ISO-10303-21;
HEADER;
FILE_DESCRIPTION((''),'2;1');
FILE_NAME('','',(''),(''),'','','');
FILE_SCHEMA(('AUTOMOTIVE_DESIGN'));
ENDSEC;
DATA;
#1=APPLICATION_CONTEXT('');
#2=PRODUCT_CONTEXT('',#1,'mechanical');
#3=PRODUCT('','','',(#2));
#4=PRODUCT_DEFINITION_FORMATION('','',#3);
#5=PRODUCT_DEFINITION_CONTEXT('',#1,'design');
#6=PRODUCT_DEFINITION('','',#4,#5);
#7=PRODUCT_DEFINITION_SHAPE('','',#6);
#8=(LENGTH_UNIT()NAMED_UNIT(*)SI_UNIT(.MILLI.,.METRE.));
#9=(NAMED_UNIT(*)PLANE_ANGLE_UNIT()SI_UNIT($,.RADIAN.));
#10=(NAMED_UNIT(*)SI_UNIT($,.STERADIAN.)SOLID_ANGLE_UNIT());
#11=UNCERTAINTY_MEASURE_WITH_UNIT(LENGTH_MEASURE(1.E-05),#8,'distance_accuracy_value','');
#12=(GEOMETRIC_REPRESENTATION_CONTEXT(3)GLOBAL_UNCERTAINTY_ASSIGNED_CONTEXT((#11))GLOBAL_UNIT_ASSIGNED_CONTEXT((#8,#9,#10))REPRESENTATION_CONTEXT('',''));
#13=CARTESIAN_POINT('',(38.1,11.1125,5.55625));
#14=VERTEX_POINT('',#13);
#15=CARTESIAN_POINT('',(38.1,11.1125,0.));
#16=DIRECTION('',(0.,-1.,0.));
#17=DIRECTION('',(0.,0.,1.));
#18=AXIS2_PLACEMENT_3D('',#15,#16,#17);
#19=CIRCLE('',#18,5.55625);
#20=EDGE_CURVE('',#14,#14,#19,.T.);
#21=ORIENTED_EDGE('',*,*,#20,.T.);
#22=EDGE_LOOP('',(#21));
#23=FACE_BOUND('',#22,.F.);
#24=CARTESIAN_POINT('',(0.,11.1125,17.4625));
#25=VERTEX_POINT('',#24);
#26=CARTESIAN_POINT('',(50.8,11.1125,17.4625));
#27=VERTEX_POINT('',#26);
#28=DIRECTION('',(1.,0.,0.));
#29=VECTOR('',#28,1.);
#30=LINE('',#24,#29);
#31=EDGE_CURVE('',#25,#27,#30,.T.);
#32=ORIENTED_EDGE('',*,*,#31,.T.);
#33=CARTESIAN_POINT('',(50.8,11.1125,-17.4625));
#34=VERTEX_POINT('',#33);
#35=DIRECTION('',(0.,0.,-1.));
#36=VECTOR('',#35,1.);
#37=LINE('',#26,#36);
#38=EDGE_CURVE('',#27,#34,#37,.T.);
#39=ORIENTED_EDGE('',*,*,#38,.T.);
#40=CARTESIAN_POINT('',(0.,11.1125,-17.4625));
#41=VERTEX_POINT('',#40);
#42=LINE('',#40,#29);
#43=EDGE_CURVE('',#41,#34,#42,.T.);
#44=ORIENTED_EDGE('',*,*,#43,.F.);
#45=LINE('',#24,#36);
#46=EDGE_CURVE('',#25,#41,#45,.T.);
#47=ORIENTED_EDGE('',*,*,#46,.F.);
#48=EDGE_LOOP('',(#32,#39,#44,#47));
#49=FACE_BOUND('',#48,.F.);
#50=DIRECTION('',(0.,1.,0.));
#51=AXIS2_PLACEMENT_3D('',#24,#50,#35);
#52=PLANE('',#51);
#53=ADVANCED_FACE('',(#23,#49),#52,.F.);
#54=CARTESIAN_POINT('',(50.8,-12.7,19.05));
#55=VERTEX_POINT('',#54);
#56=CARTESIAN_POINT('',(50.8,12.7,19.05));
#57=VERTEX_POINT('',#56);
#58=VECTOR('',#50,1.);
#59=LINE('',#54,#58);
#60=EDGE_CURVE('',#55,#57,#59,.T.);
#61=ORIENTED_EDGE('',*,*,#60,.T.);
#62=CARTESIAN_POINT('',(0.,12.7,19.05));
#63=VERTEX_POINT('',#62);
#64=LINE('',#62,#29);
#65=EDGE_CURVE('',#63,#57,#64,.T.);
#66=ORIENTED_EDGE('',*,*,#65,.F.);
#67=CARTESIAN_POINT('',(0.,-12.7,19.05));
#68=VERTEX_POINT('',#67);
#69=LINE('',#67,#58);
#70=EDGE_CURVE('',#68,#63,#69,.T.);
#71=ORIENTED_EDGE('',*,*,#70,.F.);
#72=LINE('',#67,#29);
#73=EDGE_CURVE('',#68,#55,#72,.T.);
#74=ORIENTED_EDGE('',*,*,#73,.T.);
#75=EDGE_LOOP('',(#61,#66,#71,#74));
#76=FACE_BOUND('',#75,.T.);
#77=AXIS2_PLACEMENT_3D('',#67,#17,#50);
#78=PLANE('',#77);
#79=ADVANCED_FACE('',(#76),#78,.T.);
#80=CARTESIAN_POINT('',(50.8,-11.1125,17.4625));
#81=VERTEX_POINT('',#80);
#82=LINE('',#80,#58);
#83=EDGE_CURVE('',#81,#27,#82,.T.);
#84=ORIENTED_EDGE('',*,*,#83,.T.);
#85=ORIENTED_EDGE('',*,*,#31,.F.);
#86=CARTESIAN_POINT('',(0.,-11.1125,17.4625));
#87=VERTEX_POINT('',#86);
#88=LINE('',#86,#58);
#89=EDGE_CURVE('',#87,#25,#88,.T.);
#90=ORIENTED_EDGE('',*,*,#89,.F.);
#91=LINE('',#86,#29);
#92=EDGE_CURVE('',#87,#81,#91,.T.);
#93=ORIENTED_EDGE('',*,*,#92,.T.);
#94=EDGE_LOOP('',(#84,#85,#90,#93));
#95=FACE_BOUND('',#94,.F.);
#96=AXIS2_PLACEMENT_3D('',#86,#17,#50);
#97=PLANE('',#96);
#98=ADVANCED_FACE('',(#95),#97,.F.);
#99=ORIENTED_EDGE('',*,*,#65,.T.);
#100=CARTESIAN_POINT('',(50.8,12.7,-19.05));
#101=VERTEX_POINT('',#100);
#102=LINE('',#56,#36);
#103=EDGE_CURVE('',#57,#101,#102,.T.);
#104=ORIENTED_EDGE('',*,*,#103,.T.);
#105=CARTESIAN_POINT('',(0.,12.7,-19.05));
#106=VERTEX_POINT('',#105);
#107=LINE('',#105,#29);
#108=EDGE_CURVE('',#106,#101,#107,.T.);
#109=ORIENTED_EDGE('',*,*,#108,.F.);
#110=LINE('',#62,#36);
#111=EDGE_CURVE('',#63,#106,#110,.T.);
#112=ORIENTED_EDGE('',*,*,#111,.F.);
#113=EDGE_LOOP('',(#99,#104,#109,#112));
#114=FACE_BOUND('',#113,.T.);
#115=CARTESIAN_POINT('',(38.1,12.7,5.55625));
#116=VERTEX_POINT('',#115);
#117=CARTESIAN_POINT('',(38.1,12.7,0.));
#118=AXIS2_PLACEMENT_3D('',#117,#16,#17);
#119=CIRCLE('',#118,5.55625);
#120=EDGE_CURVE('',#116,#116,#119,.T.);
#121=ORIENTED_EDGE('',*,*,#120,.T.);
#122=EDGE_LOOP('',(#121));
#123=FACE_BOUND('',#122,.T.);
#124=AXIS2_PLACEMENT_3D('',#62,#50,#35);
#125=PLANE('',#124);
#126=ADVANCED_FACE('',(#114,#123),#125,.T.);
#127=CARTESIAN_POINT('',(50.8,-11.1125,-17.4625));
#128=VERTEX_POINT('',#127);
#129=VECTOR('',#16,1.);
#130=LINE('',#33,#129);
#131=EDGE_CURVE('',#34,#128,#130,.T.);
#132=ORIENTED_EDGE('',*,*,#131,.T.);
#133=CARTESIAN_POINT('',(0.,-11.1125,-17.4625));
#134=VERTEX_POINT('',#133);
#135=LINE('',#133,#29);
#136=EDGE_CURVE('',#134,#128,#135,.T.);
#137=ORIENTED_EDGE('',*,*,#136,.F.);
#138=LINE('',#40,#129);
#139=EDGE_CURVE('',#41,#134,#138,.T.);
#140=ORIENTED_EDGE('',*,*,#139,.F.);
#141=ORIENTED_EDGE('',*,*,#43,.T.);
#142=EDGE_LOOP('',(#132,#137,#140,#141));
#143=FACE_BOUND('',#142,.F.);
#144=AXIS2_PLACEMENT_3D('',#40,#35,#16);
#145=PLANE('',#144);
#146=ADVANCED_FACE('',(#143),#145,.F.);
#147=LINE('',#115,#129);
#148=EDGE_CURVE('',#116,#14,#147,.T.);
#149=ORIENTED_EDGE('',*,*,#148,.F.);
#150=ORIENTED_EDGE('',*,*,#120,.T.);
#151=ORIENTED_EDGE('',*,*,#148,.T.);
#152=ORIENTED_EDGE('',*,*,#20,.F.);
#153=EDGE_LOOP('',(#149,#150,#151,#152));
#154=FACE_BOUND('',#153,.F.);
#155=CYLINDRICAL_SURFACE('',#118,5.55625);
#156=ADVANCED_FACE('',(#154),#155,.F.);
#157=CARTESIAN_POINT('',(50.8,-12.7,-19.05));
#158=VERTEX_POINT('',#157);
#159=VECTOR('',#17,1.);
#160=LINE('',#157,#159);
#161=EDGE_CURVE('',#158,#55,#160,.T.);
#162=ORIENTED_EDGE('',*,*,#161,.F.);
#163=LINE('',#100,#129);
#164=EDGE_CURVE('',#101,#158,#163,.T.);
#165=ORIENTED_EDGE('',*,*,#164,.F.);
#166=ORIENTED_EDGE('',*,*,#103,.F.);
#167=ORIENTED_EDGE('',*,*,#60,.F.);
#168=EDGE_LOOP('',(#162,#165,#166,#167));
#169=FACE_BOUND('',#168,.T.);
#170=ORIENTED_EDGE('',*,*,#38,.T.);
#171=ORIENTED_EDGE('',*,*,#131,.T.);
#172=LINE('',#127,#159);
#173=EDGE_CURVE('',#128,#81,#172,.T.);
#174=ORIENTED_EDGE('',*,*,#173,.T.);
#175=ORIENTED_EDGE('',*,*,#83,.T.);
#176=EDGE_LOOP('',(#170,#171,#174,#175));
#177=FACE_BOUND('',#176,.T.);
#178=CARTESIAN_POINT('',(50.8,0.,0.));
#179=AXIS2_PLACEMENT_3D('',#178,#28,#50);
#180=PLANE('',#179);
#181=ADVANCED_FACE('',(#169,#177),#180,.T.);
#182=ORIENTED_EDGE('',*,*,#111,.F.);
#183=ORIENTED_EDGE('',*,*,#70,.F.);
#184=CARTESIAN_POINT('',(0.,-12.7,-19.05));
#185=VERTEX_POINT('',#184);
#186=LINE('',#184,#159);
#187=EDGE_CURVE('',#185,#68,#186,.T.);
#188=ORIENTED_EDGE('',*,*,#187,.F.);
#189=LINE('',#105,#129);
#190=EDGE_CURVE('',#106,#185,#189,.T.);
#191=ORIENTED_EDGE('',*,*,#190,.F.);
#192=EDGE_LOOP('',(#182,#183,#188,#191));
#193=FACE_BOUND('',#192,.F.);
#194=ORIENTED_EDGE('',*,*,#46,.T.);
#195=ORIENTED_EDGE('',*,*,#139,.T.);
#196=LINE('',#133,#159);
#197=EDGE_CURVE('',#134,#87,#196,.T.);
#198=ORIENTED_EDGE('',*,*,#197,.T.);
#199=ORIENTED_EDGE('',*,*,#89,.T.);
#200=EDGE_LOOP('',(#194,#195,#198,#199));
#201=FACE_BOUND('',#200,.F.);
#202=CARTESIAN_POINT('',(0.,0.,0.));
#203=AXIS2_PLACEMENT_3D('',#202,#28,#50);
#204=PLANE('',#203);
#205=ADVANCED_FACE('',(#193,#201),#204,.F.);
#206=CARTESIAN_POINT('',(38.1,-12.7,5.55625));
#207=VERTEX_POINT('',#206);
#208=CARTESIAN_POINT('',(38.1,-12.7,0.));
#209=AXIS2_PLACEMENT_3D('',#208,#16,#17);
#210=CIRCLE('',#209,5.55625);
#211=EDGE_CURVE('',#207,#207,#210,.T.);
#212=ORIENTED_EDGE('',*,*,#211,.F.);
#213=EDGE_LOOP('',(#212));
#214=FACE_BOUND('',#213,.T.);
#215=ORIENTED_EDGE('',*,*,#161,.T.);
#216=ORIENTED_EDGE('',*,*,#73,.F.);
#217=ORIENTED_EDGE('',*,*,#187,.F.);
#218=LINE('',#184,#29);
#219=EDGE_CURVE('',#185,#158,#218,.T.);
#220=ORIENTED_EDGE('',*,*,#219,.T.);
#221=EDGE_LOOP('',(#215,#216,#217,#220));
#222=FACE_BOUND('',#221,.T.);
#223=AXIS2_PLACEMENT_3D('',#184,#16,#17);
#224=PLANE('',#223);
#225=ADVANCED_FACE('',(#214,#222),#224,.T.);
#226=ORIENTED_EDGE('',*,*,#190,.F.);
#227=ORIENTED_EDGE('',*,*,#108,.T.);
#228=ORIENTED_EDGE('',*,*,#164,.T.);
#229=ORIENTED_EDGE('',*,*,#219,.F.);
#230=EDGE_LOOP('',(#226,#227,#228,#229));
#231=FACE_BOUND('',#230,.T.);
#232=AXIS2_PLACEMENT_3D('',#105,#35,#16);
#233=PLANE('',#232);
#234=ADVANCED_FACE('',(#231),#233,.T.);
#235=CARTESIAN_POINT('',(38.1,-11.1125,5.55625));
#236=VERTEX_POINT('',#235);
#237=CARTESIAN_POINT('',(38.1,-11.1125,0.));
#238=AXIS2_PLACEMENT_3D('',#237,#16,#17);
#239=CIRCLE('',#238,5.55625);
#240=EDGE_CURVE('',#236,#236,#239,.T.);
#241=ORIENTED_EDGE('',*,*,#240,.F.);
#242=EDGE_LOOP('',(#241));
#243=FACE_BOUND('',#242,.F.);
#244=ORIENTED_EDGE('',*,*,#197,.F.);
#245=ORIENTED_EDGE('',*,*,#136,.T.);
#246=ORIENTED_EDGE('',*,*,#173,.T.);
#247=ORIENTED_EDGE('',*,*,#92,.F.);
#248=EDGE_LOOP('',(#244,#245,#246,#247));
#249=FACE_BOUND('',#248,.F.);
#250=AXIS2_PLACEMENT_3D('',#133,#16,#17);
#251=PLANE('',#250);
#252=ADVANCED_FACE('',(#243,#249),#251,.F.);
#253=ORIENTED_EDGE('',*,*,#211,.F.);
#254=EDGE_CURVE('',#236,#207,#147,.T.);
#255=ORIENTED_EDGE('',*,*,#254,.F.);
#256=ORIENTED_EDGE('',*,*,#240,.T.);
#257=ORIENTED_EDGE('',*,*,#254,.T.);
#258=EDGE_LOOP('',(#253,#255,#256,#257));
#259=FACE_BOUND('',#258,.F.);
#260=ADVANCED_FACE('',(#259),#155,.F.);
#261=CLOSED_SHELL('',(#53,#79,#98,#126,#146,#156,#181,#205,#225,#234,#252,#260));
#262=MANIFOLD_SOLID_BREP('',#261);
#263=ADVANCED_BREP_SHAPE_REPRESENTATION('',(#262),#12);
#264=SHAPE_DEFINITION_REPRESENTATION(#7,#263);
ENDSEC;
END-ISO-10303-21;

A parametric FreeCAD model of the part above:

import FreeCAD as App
import Part
import Sketcher

V = App.Vector
Q = App.Units.Quantity


def add_polygon(sketch, points):
    """Adds a closed chain of lines whose ends are joined by coincident constraints."""
    first, n = sketch.GeometryCount, len(points)
    for a, b in zip(points, points[1:] + points[:1]):
        sketch.addGeometry(Part.LineSegment(App.Vector(*a, 0), App.Vector(*b, 0)), False)
    for i in range(n):
        sketch.addConstraint(Sketcher.Constraint("Coincident", first + i, 2, first + (i + 1) % n, 1))

doc = App.newDocument("Part")
body = doc.addObject("PartDesign::Body", "Body")

sketch1 = doc.addObject("Sketcher::SketchObject", "Sketch")
body.addObject(sketch1)
sketch1.AttachmentSupport = (doc.YZ_Plane, [""])
sketch1.MapMode = "FlatFace"
add_polygon(sketch1, [(12.7, 19.05), (-12.7, 19.05), (-12.7, -19.05), (12.7, -19.05)])
add_polygon(sketch1, [(-11.1125, -17.4625), (-11.1125, 17.4625), (11.1125, 17.4625), (11.1125, -17.4625)])
sketch1.addConstraint(Sketcher.Constraint("Horizontal", 0))
sketch1.addConstraint(Sketcher.Constraint("Vertical", 1))
sketch1.addConstraint(Sketcher.Constraint("Horizontal", 2))
sketch1.addConstraint(Sketcher.Constraint("Vertical", 3))
sketch1.addConstraint(Sketcher.Constraint("Vertical", 4))
sketch1.addConstraint(Sketcher.Constraint("Horizontal", 5))
sketch1.addConstraint(Sketcher.Constraint("Vertical", 6))
sketch1.addConstraint(Sketcher.Constraint("Horizontal", 7))
sketch1.addConstraint(Sketcher.Constraint("Symmetric", 0, 2, 2, 2, -1, 1))
sketch1.addConstraint(Sketcher.Constraint("Symmetric", 4, 2, 6, 2, -1, 1))
sketch1.addConstraint(Sketcher.Constraint("DistanceX", 0, 2, 0, 1, Q("1 in")))
sketch1.addConstraint(Sketcher.Constraint("DistanceY", 1, 2, 1, 1, Q("1.5 in")))
sketch1.addConstraint(Sketcher.Constraint("DistanceX", 0, 2, 4, 2, Q("0.0625 in")))
sketch1.addConstraint(Sketcher.Constraint("DistanceY", 4, 2, 0, 2, Q("0.0625 in")))
pad1 = doc.addObject("PartDesign::Pad", "Pad")
body.addObject(pad1)
pad1.Profile = sketch1
pad1.Length = Q("2 in")

sketch2 = doc.addObject("Sketcher::SketchObject", "Sketch001")
body.addObject(sketch2)
sketch2.AttachmentSupport = (doc.XZ_Plane, [""])
sketch2.MapMode = "FlatFace"
sketch2.AttachmentOffset = App.Placement(V(0, 0, -0.5 * 25.4), App.Rotation())
sketch2.addGeometry(Part.Circle(V(38.1, 0, 0), V(0, 0, 1), 5.55625), False)
sketch2.addConstraint(Sketcher.Constraint("PointOnObject", 0, 3, -1))
sketch2.addConstraint(Sketcher.Constraint("Diameter", 0, Q("0.4375 in")))
sketch2.addConstraint(Sketcher.Constraint("DistanceX", -1, 1, 0, 3, Q("1.5 in")))
doc.recompute()
hole = doc.addObject("PartDesign::Hole", "Hole")
body.addObject(hole)
hole.Profile = sketch2
hole.ThreadType = "None"
hole.Diameter = Q("0.4375 in")
hole.DepthType = "ThroughAll"
hole.Reversed = True

doc.recompute()
